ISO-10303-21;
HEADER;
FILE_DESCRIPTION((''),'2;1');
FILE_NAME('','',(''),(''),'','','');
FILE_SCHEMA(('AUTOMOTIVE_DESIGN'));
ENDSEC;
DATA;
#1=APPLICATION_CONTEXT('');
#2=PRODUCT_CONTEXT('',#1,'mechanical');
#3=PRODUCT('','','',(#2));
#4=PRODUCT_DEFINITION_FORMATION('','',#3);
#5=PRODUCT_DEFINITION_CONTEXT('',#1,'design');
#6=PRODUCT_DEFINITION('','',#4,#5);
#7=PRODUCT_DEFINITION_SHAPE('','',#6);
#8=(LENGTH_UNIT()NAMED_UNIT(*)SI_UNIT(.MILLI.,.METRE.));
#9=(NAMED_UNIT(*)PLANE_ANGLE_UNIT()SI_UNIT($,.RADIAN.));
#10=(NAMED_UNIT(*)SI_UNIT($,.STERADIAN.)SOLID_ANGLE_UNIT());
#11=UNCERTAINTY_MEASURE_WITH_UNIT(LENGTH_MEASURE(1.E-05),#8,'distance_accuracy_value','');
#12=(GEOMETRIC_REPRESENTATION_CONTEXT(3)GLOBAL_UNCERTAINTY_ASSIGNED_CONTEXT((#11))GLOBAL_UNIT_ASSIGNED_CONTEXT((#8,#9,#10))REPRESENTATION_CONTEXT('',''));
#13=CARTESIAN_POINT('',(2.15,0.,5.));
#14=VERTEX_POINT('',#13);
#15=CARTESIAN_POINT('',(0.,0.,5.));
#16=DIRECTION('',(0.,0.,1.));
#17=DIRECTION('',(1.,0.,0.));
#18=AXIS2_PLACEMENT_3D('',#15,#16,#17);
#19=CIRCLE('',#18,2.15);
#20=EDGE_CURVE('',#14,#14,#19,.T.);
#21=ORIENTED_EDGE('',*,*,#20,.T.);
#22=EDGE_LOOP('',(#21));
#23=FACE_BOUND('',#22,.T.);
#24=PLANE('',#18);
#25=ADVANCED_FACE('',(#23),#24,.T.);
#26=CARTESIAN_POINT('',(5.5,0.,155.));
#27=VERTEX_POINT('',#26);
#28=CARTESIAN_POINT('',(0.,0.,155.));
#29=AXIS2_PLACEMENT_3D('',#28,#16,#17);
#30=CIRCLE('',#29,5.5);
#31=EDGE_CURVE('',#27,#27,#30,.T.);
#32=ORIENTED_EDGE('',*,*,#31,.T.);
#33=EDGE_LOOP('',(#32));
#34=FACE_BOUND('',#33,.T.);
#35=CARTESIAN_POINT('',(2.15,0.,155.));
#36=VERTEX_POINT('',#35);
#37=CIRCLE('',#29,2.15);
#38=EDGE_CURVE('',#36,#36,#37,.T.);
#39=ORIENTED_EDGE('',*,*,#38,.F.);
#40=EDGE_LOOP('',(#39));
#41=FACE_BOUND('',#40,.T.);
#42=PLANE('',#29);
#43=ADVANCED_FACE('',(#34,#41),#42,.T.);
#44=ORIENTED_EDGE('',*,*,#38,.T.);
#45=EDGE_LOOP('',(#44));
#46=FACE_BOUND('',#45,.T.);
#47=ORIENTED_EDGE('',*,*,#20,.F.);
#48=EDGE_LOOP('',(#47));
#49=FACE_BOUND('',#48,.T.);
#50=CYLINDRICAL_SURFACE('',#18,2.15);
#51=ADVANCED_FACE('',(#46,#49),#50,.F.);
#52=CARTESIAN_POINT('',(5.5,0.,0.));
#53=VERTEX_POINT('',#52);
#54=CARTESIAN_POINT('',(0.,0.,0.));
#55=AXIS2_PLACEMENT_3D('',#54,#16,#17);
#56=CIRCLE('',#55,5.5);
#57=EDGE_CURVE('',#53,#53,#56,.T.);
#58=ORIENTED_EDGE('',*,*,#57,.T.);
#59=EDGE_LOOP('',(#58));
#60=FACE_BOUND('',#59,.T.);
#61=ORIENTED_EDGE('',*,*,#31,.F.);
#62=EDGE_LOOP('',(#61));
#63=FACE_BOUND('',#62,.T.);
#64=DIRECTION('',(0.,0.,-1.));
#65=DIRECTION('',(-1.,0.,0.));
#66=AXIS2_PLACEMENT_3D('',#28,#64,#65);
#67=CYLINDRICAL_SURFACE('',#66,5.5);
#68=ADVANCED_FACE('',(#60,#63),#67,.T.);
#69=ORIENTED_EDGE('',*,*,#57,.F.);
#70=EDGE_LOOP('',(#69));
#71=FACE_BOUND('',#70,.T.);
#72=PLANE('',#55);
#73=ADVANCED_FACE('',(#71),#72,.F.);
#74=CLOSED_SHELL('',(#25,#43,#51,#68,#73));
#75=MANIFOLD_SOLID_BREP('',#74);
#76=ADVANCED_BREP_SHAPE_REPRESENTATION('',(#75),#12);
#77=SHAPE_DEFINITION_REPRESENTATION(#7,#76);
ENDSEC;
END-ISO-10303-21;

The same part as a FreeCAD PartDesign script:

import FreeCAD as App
import Part
import Sketcher

V = App.Vector
Q = App.Units.Quantity

doc = App.newDocument("Part")
body = doc.addObject("PartDesign::Body", "Body")

# Sketch on XY plane
sketch1 = body.newObject("Sketcher::SketchObject", "Sketch")
sketch1.AttachmentSupport = (doc.getObject("XY_Plane"), [""])
sketch1.MapMode = "FlatFace"
sketch1.addGeometry(Part.Circle(V(0, 0, 0), V(0, 0, 1), 5.5), False)
sketch1.addConstraint([
    Sketcher.Constraint("Coincident", 0, 3, -1, 1),
    Sketcher.Constraint("Diameter", 0, Q("11 mm")),
])
pad1 = body.newObject("PartDesign::Pad", "Pad")
pad1.Profile = sketch1
pad1.Length = 155

# Sketch on XY plane
sketch2 = body.newObject("Sketcher::SketchObject", "Sketch001")
sketch2.AttachmentSupport = (doc.getObject("XY_Plane"), [""])
sketch2.MapMode = "FlatFace"
sketch2.AttachmentOffset = App.Placement(V(0, 0, 155), App.Rotation())
sketch2.addGeometry(Part.Circle(V(0, 0, 0), V(0, 0, 1), 2.15), False)
sketch2.addConstraint([
    Sketcher.Constraint("Coincident", 0, 3, -1, 1),
    Sketcher.Constraint("Diameter", 0, Q("4.3 mm")),
])
pocket1 = body.newObject("PartDesign::Pocket", "Pocket")
pocket1.Profile = sketch2
pocket1.Length = 150

doc.recompute()
